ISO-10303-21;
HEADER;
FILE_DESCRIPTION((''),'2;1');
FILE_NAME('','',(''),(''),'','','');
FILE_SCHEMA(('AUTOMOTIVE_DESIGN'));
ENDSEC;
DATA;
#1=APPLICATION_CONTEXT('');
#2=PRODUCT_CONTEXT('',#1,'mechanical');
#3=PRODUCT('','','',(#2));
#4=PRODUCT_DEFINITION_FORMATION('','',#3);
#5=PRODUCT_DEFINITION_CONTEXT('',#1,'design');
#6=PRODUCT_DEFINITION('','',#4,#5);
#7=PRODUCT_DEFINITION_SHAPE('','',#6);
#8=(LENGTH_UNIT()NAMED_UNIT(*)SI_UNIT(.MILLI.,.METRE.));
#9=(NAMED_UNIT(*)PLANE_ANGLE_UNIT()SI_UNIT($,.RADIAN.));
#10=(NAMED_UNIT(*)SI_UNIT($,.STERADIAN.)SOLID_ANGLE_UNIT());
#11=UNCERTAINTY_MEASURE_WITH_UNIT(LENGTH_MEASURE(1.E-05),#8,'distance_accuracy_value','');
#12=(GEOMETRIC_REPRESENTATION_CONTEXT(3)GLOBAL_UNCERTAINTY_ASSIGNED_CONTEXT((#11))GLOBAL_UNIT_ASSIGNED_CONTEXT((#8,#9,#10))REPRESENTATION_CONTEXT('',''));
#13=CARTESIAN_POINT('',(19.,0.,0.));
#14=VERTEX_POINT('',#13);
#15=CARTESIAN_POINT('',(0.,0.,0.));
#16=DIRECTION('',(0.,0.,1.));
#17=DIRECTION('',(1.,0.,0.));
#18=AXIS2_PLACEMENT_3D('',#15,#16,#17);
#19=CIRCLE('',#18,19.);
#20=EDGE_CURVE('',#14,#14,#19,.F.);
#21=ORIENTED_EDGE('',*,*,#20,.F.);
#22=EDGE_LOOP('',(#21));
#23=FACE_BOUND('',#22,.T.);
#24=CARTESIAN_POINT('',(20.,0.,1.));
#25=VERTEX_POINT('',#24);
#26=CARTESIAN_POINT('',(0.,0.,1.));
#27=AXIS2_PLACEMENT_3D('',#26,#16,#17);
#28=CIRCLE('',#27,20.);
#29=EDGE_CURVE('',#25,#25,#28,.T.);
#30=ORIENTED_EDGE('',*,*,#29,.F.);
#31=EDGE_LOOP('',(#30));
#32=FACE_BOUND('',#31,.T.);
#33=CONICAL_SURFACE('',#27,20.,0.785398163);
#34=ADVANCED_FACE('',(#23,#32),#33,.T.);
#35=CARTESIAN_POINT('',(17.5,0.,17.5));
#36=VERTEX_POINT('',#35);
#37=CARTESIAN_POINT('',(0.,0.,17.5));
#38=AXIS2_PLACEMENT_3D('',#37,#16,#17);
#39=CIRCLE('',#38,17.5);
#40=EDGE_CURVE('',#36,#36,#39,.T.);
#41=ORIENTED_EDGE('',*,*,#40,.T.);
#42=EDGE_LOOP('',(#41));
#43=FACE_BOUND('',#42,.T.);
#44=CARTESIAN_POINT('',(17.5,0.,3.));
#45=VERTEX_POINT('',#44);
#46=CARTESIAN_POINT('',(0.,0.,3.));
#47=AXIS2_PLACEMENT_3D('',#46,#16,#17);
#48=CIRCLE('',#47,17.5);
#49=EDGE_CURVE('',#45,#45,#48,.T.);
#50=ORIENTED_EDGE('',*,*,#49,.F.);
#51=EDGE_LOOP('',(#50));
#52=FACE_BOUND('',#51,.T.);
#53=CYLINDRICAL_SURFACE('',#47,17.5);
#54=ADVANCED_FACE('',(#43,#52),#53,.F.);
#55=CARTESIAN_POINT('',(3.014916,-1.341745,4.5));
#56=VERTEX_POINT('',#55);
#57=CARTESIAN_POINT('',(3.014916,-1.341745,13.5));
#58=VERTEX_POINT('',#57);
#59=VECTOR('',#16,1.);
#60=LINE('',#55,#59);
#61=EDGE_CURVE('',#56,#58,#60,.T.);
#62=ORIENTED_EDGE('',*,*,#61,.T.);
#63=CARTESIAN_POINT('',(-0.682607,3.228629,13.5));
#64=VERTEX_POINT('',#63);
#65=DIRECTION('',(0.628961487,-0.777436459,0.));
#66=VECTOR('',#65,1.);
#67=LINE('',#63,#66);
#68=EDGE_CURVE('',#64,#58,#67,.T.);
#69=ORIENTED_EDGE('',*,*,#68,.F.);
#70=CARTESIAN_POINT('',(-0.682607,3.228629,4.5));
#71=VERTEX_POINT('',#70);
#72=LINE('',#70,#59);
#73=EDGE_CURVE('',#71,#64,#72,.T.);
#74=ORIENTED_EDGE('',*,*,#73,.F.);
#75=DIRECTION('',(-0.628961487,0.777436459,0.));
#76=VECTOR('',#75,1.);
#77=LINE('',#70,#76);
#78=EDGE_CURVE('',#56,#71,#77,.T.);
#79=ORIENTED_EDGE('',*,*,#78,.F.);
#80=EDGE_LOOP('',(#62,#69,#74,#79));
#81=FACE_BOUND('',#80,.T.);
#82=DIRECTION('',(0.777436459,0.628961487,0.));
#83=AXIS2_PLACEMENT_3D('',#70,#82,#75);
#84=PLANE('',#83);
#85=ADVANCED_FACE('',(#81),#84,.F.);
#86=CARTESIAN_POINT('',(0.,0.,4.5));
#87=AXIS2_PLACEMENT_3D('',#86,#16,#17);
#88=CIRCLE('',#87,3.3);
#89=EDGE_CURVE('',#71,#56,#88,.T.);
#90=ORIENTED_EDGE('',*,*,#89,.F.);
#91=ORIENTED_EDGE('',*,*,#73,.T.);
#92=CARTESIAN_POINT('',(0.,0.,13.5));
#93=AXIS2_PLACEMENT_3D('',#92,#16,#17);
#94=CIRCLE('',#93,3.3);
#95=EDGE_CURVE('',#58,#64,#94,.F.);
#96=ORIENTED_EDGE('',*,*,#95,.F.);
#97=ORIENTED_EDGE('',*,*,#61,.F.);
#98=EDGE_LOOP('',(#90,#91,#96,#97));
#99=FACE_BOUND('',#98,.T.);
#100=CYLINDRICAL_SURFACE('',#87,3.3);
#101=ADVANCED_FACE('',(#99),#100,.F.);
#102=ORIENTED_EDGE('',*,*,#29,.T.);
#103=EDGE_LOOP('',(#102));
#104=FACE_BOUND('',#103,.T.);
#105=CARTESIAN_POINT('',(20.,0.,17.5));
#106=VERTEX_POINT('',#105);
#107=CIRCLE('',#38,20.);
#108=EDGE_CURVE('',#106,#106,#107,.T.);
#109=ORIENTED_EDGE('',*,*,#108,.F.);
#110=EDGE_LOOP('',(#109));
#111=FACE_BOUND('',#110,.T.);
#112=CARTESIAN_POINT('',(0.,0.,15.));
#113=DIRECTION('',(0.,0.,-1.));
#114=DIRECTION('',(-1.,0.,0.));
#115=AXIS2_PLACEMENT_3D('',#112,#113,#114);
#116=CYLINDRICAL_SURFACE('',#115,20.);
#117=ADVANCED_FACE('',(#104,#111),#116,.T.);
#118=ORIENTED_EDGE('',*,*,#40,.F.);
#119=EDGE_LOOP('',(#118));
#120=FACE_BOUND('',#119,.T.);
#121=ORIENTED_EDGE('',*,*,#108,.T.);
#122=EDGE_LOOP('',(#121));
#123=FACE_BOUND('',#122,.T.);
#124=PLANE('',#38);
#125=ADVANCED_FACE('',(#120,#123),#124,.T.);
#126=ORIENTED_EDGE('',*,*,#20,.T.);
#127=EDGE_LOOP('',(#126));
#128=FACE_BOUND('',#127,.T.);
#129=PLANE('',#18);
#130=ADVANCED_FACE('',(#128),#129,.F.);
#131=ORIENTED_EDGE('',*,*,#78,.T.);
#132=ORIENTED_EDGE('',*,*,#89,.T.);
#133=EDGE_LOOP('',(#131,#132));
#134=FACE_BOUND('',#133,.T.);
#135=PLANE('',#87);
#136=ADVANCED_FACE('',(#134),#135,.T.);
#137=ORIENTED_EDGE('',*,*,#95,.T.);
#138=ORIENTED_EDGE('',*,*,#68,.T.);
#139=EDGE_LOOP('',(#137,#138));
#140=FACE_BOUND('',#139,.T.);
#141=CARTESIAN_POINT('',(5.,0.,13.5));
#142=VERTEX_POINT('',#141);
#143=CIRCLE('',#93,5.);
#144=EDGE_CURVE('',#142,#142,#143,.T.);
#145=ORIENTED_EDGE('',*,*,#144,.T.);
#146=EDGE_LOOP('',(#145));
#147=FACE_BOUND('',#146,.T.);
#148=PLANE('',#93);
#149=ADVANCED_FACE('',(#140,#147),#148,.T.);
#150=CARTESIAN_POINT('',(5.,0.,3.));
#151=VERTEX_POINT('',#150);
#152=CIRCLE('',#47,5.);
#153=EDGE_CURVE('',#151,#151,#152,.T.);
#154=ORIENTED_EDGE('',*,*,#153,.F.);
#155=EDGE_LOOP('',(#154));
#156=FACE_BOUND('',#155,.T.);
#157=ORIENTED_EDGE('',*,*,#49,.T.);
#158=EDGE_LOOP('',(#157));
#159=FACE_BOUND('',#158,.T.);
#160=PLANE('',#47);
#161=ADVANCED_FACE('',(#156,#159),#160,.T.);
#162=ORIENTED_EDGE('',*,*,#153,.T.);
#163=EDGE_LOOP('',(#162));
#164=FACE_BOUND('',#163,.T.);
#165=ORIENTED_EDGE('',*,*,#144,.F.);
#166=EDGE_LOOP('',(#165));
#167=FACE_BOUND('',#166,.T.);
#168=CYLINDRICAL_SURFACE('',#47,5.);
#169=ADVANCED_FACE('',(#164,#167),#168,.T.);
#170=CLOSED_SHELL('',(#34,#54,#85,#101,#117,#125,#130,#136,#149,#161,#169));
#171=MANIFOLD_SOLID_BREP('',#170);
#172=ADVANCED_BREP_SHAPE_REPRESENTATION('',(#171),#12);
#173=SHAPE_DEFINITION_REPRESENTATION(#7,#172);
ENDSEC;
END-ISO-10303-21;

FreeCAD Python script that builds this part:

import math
import FreeCAD as App
import Part
import Sketcher
from FreeCAD import Vector
Q = App.Units.Quantity


def edges_at(feature, points):
    """Names of the edges that pass closest to the given points."""
    edges = feature.Shape.Edges
    near = lambda p: min(range(len(edges)), key=lambda i: edges[i].distToShape(Part.Vertex(*p))[0])
    return sorted({f"Edge{near(p) + 1}" for p in points})

doc = App.newDocument("Part")
params = doc.addObject("Spreadsheet::Sheet", "Params")
for row, (alias, value) in enumerate([
    ("sketch1_diameter", "40 mm"),
    ("pad1_length", "15 mm"),
    ("sketch2_diameter", "35 mm"),
    ("sketch2_diameter2", "10 mm"),
    ("pocket1_length", "12 mm"),
    ("sketch3_radius", "3.3 mm"),
    ("pocket2_length", "10.5 mm"),
    ("sketch4_diameter", "10 mm"),
    ("pocket3_length", "1.5 mm"),
    ("chamfer_size", "1 mm"),
    ("sketch5_diameter", "40 mm"),
    ("sketch5_diameter2", "35 mm"),
    ("pad2_length", "2.5 mm"),
], start=1):
    params.set(f"A{row}", alias)
    params.set(f"B{row}", "=" + value)
    params.setAlias(f"B{row}", alias)

body = doc.addObject("PartDesign::Body", "Body")

sketch1 = body.newObject("Sketcher::SketchObject", "Sketch")
sketch1.AttachmentSupport = (doc.getObject("XY_Plane"), [""])
sketch1.MapMode = "FlatFace"
sketch1.addGeometry(Part.Circle(Vector(0, 0, 0), Vector(0, 0, 1), 20), False)
sketch1.addConstraint([
    Sketcher.Constraint("Coincident", 0, 3, -1, 1),
    Sketcher.Constraint("Diameter", 0, Q("40 mm")),
])
sketch1.setExpression("Constraints[1]", "Params.sketch1_diameter")
pad1 = body.newObject("PartDesign::Pad", "Pad")
pad1.Profile = sketch1
pad1.setExpression("Length", "Params.pad1_length")

sketch2 = body.newObject("Sketcher::SketchObject", "Sketch001")
sketch2.AttachmentSupport = (doc.getObject("XY_Plane"), [""])
sketch2.MapMode = "FlatFace"
sketch2.AttachmentOffset = App.Placement(Vector(0, 0, 15), App.Rotation())
sketch2.addGeometry([
    Part.Circle(Vector(0, 0, 0), Vector(0, 0, 1), 18),
    Part.Circle(Vector(0, 0, 0), Vector(0, 0, 1), 5),
], False)
sketch2.addConstraint([
    Sketcher.Constraint("Coincident", 0, 3, -1, 1),
    Sketcher.Constraint("Coincident", 1, 3, -1, 1),
    Sketcher.Constraint("Diameter", 0, Q("35 mm")),
    Sketcher.Constraint("Diameter", 1, Q("10 mm")),
])
sketch2.setExpression("Constraints[2]", "Params.sketch2_diameter")
sketch2.setExpression("Constraints[3]", "Params.sketch2_diameter2")
pocket1 = body.newObject("PartDesign::Pocket", "Pocket")
pocket1.Profile = sketch2
pocket1.setExpression("Length", "Params.pocket1_length")

sketch3 = body.newObject("Sketcher::SketchObject", "Sketch002")
sketch3.AttachmentSupport = (doc.getObject("XY_Plane"), [""])
sketch3.MapMode = "FlatFace"
sketch3.AttachmentOffset = App.Placement(Vector(0, 0, 15), App.Rotation())
sketch3.addGeometry([
    Part.LineSegment(Vector(3, -1.3, 0), Vector(-0.7, 3.2, 0)),
    Part.ArcOfCircle(Part.Circle(Vector(0, 0, 0), Vector(0, 0, 1), 3.3), math.radians(102), math.radians(336)),
], False)
sketch3.addConstraint([
    Sketcher.Constraint("Coincident", 0, 1, 1, 2),
    Sketcher.Constraint("Coincident", 1, 1, 0, 2),
    Sketcher.Constraint("Coincident", 1, 3, -1, 1),
    Sketcher.Constraint("Radius", 1, Q("3.3 mm")),
    Sketcher.Constraint("DistanceY", -1, 1, 1, 1, Q("3.228629 mm")),
    Sketcher.Constraint("Distance", 0, Q("5.878775 mm")),
])
sketch3.setExpression("Constraints[3]", "Params.sketch3_radius")
pocket2 = body.newObject("PartDesign::Pocket", "Pocket001")
pocket2.Profile = sketch3
pocket2.setExpression("Length", "Params.pocket2_length")

sketch4 = body.newObject("Sketcher::SketchObject", "Sketch003")
sketch4.AttachmentSupport = (doc.getObject("XY_Plane"), [""])
sketch4.MapMode = "FlatFace"
sketch4.AttachmentOffset = App.Placement(Vector(0, 0, 15), App.Rotation())
sketch4.addGeometry(Part.Circle(Vector(0, 0, 0), Vector(0, 0, 1), 5), False)
sketch4.addConstraint([
    Sketcher.Constraint("Coincident", 0, 3, -1, 1),
    Sketcher.Constraint("Diameter", 0, Q("10 mm")),
])
sketch4.setExpression("Constraints[1]", "Params.sketch4_diameter")
pocket3 = body.newObject("PartDesign::Pocket", "Pocket002")
pocket3.Profile = sketch4
pocket3.setExpression("Length", "Params.pocket3_length")
doc.recompute()

chamfer = body.newObject("PartDesign::Chamfer", "Chamfer")
chamfer.Base = (pocket3, edges_at(pocket3, [(-20, 0, 0)]))
chamfer.setExpression("Size", "Params.chamfer_size")

sketch5 = body.newObject("Sketcher::SketchObject", "Sketch004")
sketch5.AttachmentSupport = (doc.getObject("XY_Plane"), [""])
sketch5.MapMode = "FlatFace"
sketch5.AttachmentOffset = App.Placement(Vector(0, 0, 15), App.Rotation())
sketch5.addGeometry([
    Part.Circle(Vector(0, 0, 0), Vector(0, 0, 1), 20),
    Part.Circle(Vector(0, 0, 0), Vector(0, 0, 1), 18),
], False)
sketch5.addConstraint([
    Sketcher.Constraint("Coincident", 0, 3, -1, 1),
    Sketcher.Constraint("Coincident", 1, 3, -1, 1),
    Sketcher.Constraint("Diameter", 0, Q("40 mm")),
    Sketcher.Constraint("Diameter", 1, Q("35 mm")),
])
sketch5.setExpression("Constraints[2]", "Params.sketch5_diameter")
sketch5.setExpression("Constraints[3]", "Params.sketch5_diameter2")
pad2 = body.newObject("PartDesign::Pad", "Pad001")
pad2.Profile = sketch5
pad2.setExpression("Length", "Params.pad2_length")

doc.recompute()
